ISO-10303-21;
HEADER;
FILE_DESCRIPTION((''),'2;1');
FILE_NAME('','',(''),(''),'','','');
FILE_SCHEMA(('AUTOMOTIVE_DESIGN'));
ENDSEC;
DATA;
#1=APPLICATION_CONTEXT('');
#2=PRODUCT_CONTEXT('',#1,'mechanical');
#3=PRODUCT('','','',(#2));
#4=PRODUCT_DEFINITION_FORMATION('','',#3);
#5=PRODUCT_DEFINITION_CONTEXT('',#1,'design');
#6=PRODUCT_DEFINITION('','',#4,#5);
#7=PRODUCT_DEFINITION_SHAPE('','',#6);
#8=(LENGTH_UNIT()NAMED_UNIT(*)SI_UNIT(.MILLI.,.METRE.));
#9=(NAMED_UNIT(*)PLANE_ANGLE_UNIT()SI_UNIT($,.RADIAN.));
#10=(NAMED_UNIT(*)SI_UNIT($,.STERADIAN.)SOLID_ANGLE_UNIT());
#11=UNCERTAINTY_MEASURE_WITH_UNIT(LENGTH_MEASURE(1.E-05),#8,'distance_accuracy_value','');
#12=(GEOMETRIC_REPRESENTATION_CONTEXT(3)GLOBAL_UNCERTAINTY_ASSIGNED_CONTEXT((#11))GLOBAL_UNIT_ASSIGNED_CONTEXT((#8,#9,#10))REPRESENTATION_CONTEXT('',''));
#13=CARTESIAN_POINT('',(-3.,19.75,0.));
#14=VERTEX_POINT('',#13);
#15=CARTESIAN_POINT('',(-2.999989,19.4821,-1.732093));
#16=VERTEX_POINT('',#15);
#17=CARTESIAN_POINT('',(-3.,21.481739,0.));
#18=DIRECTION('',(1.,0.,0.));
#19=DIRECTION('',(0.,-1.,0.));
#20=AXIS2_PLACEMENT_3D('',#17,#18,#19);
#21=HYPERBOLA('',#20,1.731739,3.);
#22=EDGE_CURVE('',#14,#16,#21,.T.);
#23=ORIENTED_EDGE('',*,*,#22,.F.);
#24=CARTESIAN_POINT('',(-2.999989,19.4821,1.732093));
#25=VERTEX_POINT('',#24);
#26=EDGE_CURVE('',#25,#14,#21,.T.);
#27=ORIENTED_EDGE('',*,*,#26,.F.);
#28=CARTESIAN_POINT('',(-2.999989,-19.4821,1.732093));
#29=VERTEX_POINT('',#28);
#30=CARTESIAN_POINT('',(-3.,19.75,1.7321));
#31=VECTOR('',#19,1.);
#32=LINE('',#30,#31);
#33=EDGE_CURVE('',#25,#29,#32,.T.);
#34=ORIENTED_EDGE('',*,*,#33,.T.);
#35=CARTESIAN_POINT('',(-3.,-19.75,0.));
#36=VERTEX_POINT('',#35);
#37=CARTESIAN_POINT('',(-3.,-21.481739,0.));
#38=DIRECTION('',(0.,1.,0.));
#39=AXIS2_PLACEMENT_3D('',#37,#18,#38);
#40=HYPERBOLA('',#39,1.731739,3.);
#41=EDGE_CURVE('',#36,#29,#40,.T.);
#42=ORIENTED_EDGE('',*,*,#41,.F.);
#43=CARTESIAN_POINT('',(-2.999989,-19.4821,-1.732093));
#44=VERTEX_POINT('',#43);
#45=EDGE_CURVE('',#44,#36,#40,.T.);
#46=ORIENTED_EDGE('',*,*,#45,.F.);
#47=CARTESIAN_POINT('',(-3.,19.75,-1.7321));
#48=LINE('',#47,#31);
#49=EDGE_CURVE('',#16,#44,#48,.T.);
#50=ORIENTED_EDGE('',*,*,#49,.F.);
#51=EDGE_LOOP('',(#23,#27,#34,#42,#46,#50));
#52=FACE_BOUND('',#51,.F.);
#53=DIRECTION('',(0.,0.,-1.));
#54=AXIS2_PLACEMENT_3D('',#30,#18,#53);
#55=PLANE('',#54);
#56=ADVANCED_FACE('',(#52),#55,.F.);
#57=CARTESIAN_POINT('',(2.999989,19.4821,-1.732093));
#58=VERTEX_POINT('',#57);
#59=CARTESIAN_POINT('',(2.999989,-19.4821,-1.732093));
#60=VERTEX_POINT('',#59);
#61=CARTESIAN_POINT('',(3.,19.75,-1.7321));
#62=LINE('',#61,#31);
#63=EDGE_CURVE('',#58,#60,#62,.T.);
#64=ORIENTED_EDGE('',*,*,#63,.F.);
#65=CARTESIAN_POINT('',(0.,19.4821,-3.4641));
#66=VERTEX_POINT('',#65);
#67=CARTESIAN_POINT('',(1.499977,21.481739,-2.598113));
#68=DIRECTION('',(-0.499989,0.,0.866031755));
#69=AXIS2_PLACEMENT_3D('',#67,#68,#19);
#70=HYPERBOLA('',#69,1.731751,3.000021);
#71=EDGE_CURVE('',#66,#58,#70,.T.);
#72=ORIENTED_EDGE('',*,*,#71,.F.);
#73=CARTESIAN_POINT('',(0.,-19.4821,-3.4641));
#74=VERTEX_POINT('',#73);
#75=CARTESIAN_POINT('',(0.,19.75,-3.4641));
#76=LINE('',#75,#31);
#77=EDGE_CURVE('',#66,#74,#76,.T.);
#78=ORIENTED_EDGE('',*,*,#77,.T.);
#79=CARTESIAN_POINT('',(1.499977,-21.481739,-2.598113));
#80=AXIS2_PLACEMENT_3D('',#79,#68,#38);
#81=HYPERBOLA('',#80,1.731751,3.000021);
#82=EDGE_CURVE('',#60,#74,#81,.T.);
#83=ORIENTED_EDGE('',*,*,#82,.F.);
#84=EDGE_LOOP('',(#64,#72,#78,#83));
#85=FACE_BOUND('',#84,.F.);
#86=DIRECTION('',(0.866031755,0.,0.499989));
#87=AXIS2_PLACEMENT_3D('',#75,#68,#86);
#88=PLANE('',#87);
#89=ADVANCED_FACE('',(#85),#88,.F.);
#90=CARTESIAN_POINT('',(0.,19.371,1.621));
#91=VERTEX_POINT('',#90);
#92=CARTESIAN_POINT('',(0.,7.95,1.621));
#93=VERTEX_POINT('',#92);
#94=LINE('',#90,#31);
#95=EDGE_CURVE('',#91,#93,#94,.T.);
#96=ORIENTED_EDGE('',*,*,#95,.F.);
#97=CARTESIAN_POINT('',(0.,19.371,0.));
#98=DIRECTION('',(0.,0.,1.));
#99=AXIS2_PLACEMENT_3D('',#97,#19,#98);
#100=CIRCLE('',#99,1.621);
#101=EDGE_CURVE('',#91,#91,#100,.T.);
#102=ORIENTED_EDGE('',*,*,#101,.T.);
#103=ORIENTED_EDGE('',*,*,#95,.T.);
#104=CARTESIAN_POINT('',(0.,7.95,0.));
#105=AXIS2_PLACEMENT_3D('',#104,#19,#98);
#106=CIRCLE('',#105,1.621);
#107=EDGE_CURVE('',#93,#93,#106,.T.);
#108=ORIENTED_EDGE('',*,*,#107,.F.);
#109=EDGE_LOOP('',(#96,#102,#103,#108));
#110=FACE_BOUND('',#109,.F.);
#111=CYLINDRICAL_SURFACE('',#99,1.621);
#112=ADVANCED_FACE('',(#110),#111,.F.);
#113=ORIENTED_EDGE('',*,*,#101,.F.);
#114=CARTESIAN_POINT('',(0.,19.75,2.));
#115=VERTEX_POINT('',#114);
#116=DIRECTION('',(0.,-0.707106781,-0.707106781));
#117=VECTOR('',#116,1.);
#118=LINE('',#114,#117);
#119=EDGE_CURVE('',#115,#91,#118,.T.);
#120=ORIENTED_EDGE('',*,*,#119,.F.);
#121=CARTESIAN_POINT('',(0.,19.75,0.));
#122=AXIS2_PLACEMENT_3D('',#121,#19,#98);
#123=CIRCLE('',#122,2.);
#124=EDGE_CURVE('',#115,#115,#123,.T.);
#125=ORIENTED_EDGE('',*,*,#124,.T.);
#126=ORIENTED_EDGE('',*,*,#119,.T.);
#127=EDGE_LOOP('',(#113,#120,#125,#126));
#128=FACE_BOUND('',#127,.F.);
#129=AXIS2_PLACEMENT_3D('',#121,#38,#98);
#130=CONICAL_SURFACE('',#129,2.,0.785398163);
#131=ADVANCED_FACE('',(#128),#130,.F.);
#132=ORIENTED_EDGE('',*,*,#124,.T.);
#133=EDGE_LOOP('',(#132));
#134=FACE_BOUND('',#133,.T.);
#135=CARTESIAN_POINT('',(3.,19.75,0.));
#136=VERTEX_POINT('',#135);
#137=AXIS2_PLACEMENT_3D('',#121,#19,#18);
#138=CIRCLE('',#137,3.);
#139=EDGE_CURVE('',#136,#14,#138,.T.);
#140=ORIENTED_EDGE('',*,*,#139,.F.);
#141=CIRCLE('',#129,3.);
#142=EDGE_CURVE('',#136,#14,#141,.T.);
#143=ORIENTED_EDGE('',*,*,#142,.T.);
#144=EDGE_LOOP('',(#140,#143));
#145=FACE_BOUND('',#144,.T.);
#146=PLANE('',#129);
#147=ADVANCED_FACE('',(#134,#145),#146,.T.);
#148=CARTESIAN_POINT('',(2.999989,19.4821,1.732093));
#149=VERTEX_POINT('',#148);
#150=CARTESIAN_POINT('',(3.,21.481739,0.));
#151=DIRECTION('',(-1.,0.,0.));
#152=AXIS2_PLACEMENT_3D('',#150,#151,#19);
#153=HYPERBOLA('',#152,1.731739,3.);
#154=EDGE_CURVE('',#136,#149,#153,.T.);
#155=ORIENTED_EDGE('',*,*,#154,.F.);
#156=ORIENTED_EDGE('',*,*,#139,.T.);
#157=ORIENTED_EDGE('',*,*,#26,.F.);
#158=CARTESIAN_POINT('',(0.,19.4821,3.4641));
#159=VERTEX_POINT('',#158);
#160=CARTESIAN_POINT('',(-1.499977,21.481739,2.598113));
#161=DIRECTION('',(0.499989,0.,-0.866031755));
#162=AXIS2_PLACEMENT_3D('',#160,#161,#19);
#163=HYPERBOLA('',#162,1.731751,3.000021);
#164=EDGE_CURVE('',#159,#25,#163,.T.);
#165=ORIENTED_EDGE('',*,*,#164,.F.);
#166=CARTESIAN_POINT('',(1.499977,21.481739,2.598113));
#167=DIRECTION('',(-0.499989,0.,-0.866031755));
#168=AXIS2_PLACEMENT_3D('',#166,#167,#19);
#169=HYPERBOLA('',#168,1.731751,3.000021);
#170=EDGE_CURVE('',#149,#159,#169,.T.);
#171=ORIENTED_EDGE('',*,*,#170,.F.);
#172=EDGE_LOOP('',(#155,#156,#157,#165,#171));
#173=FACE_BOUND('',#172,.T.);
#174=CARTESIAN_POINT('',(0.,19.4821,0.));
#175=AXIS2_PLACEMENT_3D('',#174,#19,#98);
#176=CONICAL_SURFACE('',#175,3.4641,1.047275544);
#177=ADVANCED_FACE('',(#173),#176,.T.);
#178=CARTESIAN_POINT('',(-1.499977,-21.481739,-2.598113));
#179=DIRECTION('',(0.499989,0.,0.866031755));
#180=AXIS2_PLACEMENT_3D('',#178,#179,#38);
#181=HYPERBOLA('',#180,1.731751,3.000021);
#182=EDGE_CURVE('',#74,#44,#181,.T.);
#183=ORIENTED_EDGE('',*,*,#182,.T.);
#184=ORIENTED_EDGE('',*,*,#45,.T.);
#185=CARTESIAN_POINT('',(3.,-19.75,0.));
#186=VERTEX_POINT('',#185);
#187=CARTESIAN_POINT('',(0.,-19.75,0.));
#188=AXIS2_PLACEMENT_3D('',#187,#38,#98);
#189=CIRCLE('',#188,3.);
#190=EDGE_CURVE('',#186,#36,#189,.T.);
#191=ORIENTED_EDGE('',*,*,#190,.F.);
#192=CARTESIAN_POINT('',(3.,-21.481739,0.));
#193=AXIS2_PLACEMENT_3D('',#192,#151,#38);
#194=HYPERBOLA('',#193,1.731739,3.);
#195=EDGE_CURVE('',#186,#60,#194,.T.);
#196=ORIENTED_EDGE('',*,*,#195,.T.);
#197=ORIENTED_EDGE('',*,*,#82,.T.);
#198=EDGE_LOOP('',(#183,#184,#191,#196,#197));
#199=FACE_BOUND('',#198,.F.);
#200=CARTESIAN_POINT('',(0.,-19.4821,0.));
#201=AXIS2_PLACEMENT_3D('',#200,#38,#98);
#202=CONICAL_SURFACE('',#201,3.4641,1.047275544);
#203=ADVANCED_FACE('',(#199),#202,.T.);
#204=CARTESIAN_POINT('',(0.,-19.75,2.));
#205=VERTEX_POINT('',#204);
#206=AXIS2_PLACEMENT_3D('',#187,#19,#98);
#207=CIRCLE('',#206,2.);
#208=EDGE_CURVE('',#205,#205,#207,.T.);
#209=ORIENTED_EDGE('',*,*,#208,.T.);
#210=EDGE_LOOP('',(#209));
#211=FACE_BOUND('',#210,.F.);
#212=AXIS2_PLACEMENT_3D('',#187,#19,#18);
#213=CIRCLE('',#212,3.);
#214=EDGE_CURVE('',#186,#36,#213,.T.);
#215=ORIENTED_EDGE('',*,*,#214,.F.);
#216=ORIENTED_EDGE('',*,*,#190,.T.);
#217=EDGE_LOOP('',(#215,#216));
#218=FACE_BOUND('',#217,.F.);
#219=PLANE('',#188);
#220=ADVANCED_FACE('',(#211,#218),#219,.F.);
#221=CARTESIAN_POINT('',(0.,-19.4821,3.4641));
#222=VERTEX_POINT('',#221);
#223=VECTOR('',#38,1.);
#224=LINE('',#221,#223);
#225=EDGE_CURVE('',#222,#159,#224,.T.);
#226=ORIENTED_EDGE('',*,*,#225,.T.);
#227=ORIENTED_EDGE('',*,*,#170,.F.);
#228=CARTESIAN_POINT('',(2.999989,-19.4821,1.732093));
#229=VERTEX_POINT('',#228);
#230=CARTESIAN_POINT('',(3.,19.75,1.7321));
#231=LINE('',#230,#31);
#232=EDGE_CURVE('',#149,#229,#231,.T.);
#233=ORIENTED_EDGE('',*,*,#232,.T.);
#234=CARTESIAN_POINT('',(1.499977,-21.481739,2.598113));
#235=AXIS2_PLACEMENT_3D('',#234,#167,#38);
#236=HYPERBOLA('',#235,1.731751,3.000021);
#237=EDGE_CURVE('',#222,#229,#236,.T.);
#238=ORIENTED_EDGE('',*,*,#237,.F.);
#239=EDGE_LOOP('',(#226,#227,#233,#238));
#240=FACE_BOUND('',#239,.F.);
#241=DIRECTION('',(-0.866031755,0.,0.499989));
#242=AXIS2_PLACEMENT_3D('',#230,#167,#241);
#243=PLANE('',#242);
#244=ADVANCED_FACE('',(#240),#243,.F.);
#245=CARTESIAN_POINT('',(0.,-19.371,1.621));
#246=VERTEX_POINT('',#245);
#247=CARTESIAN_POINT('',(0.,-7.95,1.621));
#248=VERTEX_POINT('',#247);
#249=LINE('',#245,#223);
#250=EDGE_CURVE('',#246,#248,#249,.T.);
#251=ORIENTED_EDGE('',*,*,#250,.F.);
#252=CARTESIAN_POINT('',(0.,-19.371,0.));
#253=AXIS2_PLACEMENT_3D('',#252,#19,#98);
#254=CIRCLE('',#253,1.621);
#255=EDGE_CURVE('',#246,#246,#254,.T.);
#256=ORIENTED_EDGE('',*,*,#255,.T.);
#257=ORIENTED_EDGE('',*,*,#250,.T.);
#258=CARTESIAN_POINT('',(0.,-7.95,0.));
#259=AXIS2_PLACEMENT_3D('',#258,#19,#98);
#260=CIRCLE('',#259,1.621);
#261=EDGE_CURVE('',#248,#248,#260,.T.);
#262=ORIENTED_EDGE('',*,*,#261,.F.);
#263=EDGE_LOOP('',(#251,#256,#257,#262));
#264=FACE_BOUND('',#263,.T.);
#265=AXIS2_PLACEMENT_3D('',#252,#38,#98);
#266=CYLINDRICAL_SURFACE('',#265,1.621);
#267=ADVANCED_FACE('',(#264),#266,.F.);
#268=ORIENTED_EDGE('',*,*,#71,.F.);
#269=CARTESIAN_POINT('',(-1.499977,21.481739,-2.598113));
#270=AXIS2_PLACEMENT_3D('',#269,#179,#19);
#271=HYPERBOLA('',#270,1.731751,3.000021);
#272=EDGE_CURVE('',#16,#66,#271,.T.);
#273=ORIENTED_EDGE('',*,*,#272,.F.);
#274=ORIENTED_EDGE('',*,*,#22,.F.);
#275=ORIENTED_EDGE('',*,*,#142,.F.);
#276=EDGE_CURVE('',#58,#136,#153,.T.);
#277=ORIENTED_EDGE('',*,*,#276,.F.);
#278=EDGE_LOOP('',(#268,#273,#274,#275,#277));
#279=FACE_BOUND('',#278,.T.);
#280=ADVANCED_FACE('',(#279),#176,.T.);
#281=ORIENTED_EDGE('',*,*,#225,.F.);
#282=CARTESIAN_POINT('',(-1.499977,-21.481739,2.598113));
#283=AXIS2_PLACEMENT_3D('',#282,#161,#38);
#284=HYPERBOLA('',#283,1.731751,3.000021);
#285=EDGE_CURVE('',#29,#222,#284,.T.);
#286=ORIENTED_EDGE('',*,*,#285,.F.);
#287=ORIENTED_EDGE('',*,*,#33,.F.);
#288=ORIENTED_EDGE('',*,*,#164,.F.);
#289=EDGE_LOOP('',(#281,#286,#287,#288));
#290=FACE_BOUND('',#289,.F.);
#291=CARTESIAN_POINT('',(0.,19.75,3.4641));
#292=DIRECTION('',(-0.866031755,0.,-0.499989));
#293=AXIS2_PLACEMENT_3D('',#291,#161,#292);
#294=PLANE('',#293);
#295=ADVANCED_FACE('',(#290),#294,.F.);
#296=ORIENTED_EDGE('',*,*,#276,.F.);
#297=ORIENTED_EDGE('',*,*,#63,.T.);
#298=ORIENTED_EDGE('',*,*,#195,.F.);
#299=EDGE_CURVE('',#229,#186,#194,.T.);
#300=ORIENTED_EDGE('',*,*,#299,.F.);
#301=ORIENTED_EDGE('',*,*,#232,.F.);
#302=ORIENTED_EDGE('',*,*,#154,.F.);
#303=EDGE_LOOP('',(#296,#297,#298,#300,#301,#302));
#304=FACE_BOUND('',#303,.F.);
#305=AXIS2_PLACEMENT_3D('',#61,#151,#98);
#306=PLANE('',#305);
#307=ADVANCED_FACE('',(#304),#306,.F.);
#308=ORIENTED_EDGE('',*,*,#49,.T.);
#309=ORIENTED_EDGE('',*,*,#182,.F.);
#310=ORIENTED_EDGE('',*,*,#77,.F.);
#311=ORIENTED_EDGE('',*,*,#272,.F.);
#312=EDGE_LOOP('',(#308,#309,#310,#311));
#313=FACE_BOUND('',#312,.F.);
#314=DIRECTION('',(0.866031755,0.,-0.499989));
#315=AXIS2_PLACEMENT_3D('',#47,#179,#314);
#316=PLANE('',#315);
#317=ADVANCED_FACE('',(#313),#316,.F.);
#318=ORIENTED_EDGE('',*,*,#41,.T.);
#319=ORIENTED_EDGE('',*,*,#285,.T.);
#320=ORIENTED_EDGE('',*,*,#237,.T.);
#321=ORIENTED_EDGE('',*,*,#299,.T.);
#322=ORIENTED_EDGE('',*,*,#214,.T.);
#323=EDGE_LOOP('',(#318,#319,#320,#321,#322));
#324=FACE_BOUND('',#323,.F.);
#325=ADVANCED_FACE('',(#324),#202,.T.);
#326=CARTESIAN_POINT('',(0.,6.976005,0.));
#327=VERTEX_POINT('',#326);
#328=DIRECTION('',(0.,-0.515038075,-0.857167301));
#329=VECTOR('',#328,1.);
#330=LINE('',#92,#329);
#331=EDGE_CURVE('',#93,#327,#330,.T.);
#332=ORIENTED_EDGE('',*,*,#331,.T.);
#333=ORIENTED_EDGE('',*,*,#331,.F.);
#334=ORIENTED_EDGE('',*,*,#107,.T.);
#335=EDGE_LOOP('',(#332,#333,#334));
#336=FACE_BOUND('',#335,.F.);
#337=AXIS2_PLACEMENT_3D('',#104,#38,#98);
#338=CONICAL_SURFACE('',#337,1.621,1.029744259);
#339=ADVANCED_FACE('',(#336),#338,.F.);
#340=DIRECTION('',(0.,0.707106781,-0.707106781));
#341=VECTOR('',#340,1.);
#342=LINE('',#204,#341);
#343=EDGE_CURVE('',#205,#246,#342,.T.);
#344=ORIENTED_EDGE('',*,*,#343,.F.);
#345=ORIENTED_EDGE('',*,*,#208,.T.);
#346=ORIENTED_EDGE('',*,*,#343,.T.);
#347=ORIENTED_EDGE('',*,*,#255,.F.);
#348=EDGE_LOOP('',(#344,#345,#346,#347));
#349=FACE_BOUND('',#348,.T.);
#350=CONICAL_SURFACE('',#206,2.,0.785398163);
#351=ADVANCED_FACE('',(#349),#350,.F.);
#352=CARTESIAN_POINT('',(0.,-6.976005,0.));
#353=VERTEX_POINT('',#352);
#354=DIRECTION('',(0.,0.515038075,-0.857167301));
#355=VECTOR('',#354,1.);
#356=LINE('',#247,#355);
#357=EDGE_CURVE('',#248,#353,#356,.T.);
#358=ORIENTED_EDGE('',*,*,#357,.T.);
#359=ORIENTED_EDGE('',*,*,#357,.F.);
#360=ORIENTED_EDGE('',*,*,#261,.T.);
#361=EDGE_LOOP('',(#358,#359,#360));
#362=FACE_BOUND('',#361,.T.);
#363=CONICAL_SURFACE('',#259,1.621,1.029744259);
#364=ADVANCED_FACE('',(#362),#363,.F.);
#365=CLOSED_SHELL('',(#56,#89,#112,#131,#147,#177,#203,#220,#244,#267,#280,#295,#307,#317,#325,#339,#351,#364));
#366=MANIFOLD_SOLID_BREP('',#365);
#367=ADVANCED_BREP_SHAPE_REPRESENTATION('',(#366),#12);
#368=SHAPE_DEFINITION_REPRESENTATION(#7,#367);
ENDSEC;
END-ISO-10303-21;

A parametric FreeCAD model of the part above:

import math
import FreeCAD as App
import Part
import Sketcher
Q = App.Units.Quantity

doc = App.newDocument("Part")
body = doc.addObject("PartDesign::Body", "Body")

# Sketch on YZ plane
sketch1 = body.newObject("Sketcher::SketchObject", "Sketch")
sketch1.AttachmentSupport = (doc.getObject("YZ_Plane"), [""])
sketch1.MapMode = "FlatFace"
sketch1.addGeometry([
    Part.LineSegment(App.Vector(-19.8, 3, 0), App.Vector(-19.8, 0, 0)),  # 0
    Part.LineSegment(App.Vector(-19.8, 0, 0), App.Vector(19.8, 0, 0)),  # 1
    Part.LineSegment(App.Vector(19.8, 0, 0), App.Vector(19.8, 3, 0)),  # 2
    Part.LineSegment(App.Vector(19.8, 3, 0), App.Vector(19.5, 3.5, 0)),  # 3
    Part.LineSegment(App.Vector(19.5, 3.5, 0), App.Vector(-19.5, 3.5, 0)),  # 4
    Part.LineSegment(App.Vector(-19.5, 3.5, 0), App.Vector(-19.8, 3, 0)),  # 5
], False)
sketch1.addConstraint([
    Sketcher.Constraint("Coincident", 0, 2, 1, 1),
    Sketcher.Constraint("Coincident", 1, 2, 2, 1),
    Sketcher.Constraint("Coincident", 2, 2, 3, 1),
    Sketcher.Constraint("Coincident", 3, 2, 4, 1),
    Sketcher.Constraint("Coincident", 4, 2, 5, 1),
    Sketcher.Constraint("Coincident", 5, 2, 0, 1),
    Sketcher.Constraint("Vertical", 0),
    Sketcher.Constraint("Horizontal", 1),
    Sketcher.Constraint("Vertical", 2),
    Sketcher.Constraint("Horizontal", 4),
    Sketcher.Constraint("Symmetric", 0, 2, 1, 2, -1, 1),
    Sketcher.Constraint("Horizontal", 2, 2, 5, 2),
    Sketcher.Constraint("Equal", 3, 5),
    Sketcher.Constraint("DistanceY", 0, 2, 0, 1, 3.0),
    Sketcher.Constraint("DistanceX", 1, 1, 1, 2, 39.5),
    Sketcher.Constraint("DistanceY", -1, 1, 3, 2, 3.464),
    Sketcher.Constraint("DistanceX", 4, 2, 4, 1, 38.9642),
])
revolution = body.newObject("PartDesign::Revolution", "Revolution")
revolution.Profile = sketch1
revolution.ReferenceAxis = (sketch1, ["H_Axis"])
revolution.Angle = 360

# Sketch on XZ plane
sketch2 = body.newObject("Sketcher::SketchObject", "Sketch001")
sketch2.AttachmentSupport = (doc.getObject("XZ_Plane"), [""])
sketch2.MapMode = "FlatFace"
sketch2.AttachmentOffset = App.Placement(App.Vector(0, 0, -19.75), App.Rotation())
sketch2.addGeometry([
    Part.ArcOfCircle(Part.Circle(App.Vector(0, 0, 0), App.Vector(0, 0, 1), 3.5), math.radians(-30), math.radians(30)),  # 0
    Part.LineSegment(App.Vector(3, 1.7, 0), App.Vector(3, -1.7, 0)),  # 1
    Part.LineSegment(App.Vector(0, -3.5, 0), App.Vector(3, -1.7, 0)),  # 2
    Part.ArcOfCircle(Part.Circle(App.Vector(0, 0, 0), App.Vector(0, 0, 1), 3.5), math.radians(-90), math.radians(-30)),  # 3
    Part.ArcOfCircle(Part.Circle(App.Vector(0, 0, 0), App.Vector(0, 0, 1), 3.5), math.radians(30), math.radians(90)),  # 4
    Part.LineSegment(App.Vector(0, 3.5, 0), App.Vector(3, 1.7, 0)),  # 5
    Part.LineSegment(App.Vector(-3, -1.7, 0), App.Vector(0, -3.5, 0)),  # 6
    Part.ArcOfCircle(Part.Circle(App.Vector(0, 0, 0), App.Vector(0, 0, 1), 3.5), math.radians(-150), math.radians(-90)),  # 7
    Part.ArcOfCircle(Part.Circle(App.Vector(0, 0, 0), App.Vector(0, 0, 1), 3.5), math.radians(90), math.radians(150)),  # 8
    Part.LineSegment(App.Vector(0, 3.5, 0), App.Vector(-3, 1.7, 0)),  # 9
    Part.LineSegment(App.Vector(-3, 1.7, 0), App.Vector(-3, -1.7, 0)),  # 10
    Part.ArcOfCircle(Part.Circle(App.Vector(0, 0, 0), App.Vector(0, 0, 1), 3.5), math.radians(150), math.radians(210)),  # 11
], False)
sketch2.addConstraint([
    Sketcher.Constraint("Coincident", 0, 1, 1, 2),
    Sketcher.Constraint("Coincident", 1, 1, 0, 2),
    Sketcher.Constraint("Coincident", 2, 1, 3, 1),
    Sketcher.Constraint("Coincident", 3, 2, 2, 2),
    Sketcher.Constraint("Coincident", 4, 1, 5, 2),
    Sketcher.Constraint("Coincident", 5, 1, 4, 2),
    Sketcher.Constraint("Coincident", 6, 1, 7, 1),
    Sketcher.Constraint("Coincident", 7, 2, 6, 2),
    Sketcher.Constraint("Coincident", 8, 1, 9, 1),
    Sketcher.Constraint("Coincident", 9, 2, 8, 2),
    Sketcher.Constraint("Coincident", 10, 1, 11, 1),
    Sketcher.Constraint("Coincident", 11, 2, 10, 2),
    Sketcher.Constraint("Vertical", 1),
    Sketcher.Constraint("Vertical", 10),
    Sketcher.Constraint("Coincident", 0, 3, -1, 1),
    Sketcher.Constraint("Coincident", 3, 3, -1, 1),
    Sketcher.Constraint("Coincident", 4, 3, -1, 1),
    Sketcher.Constraint("Coincident", 7, 3, -1, 1),
    Sketcher.Constraint("Coincident", 8, 3, -1, 1),
    Sketcher.Constraint("Coincident", 11, 3, -1, 1),
    Sketcher.Constraint("Coincident", 3, 2, 0, 1),
    Sketcher.Constraint("Coincident", 4, 1, 1, 1),
    Sketcher.Constraint("Coincident", 7, 2, 2, 1),
    Sketcher.Constraint("Coincident", 8, 1, 5, 1),
    Sketcher.Constraint("Coincident", 10, 1, 9, 2),
    Sketcher.Constraint("PointOnObject", 2, 1, -2),
    Sketcher.Constraint("PointOnObject", 5, 1, -2),
    Sketcher.Constraint("Parallel", 5, 6),
    Sketcher.Constraint("Parallel", 2, 9),
    Sketcher.Constraint("Angle", 2, Q("29.9993 deg")),
    Sketcher.Constraint("DistanceX", -1, 1, 0, 1, 3.0),
])
pocket1 = body.newObject("PartDesign::Pocket", "Pocket")
pocket1.Profile = sketch2
pocket1.Type = "ThroughAll"
pocket1.Reversed = True

# Sketch on XZ plane
sketch3 = body.newObject("Sketcher::SketchObject", "Sketch002")
sketch3.AttachmentSupport = (doc.getObject("XZ_Plane"), [""])
sketch3.MapMode = "FlatFace"
sketch3.AttachmentOffset = App.Placement(App.Vector(0, 0, -19.75), App.Rotation())
sketch3.addGeometry(Part.Circle(App.Vector(0, 0, 0), App.Vector(0, 0, 1), 1.6), False)
sketch3.addConstraint([
    Sketcher.Constraint("Coincident", 0, 3, -1, 1),
    Sketcher.Constraint("Diameter", 0, 3.242),
])
doc.recompute()
hole = body.newObject("PartDesign::Hole", "Hole")
hole.Profile = sketch3
hole.ThreadType = "None"
hole.Diameter = 3.242
hole.DepthType = "Dimension"
hole.Depth = 11.8
hole.DrillPoint = "Angled"
hole.DrillPointAngle = 118
hole.HoleCutType = "Countersink"
hole.HoleCutDiameter = 4
hole.HoleCutCountersinkAngle = 90
hole.Reversed = True
doc.recompute()

mirrored = body.newObject("PartDesign::Mirrored", "Mirrored")
mirrored.Originals = [hole]
mirrored.MirrorPlane = (doc.getObject("XZ_Plane"), [""])
body.Tip = mirrored

doc.recompute()
